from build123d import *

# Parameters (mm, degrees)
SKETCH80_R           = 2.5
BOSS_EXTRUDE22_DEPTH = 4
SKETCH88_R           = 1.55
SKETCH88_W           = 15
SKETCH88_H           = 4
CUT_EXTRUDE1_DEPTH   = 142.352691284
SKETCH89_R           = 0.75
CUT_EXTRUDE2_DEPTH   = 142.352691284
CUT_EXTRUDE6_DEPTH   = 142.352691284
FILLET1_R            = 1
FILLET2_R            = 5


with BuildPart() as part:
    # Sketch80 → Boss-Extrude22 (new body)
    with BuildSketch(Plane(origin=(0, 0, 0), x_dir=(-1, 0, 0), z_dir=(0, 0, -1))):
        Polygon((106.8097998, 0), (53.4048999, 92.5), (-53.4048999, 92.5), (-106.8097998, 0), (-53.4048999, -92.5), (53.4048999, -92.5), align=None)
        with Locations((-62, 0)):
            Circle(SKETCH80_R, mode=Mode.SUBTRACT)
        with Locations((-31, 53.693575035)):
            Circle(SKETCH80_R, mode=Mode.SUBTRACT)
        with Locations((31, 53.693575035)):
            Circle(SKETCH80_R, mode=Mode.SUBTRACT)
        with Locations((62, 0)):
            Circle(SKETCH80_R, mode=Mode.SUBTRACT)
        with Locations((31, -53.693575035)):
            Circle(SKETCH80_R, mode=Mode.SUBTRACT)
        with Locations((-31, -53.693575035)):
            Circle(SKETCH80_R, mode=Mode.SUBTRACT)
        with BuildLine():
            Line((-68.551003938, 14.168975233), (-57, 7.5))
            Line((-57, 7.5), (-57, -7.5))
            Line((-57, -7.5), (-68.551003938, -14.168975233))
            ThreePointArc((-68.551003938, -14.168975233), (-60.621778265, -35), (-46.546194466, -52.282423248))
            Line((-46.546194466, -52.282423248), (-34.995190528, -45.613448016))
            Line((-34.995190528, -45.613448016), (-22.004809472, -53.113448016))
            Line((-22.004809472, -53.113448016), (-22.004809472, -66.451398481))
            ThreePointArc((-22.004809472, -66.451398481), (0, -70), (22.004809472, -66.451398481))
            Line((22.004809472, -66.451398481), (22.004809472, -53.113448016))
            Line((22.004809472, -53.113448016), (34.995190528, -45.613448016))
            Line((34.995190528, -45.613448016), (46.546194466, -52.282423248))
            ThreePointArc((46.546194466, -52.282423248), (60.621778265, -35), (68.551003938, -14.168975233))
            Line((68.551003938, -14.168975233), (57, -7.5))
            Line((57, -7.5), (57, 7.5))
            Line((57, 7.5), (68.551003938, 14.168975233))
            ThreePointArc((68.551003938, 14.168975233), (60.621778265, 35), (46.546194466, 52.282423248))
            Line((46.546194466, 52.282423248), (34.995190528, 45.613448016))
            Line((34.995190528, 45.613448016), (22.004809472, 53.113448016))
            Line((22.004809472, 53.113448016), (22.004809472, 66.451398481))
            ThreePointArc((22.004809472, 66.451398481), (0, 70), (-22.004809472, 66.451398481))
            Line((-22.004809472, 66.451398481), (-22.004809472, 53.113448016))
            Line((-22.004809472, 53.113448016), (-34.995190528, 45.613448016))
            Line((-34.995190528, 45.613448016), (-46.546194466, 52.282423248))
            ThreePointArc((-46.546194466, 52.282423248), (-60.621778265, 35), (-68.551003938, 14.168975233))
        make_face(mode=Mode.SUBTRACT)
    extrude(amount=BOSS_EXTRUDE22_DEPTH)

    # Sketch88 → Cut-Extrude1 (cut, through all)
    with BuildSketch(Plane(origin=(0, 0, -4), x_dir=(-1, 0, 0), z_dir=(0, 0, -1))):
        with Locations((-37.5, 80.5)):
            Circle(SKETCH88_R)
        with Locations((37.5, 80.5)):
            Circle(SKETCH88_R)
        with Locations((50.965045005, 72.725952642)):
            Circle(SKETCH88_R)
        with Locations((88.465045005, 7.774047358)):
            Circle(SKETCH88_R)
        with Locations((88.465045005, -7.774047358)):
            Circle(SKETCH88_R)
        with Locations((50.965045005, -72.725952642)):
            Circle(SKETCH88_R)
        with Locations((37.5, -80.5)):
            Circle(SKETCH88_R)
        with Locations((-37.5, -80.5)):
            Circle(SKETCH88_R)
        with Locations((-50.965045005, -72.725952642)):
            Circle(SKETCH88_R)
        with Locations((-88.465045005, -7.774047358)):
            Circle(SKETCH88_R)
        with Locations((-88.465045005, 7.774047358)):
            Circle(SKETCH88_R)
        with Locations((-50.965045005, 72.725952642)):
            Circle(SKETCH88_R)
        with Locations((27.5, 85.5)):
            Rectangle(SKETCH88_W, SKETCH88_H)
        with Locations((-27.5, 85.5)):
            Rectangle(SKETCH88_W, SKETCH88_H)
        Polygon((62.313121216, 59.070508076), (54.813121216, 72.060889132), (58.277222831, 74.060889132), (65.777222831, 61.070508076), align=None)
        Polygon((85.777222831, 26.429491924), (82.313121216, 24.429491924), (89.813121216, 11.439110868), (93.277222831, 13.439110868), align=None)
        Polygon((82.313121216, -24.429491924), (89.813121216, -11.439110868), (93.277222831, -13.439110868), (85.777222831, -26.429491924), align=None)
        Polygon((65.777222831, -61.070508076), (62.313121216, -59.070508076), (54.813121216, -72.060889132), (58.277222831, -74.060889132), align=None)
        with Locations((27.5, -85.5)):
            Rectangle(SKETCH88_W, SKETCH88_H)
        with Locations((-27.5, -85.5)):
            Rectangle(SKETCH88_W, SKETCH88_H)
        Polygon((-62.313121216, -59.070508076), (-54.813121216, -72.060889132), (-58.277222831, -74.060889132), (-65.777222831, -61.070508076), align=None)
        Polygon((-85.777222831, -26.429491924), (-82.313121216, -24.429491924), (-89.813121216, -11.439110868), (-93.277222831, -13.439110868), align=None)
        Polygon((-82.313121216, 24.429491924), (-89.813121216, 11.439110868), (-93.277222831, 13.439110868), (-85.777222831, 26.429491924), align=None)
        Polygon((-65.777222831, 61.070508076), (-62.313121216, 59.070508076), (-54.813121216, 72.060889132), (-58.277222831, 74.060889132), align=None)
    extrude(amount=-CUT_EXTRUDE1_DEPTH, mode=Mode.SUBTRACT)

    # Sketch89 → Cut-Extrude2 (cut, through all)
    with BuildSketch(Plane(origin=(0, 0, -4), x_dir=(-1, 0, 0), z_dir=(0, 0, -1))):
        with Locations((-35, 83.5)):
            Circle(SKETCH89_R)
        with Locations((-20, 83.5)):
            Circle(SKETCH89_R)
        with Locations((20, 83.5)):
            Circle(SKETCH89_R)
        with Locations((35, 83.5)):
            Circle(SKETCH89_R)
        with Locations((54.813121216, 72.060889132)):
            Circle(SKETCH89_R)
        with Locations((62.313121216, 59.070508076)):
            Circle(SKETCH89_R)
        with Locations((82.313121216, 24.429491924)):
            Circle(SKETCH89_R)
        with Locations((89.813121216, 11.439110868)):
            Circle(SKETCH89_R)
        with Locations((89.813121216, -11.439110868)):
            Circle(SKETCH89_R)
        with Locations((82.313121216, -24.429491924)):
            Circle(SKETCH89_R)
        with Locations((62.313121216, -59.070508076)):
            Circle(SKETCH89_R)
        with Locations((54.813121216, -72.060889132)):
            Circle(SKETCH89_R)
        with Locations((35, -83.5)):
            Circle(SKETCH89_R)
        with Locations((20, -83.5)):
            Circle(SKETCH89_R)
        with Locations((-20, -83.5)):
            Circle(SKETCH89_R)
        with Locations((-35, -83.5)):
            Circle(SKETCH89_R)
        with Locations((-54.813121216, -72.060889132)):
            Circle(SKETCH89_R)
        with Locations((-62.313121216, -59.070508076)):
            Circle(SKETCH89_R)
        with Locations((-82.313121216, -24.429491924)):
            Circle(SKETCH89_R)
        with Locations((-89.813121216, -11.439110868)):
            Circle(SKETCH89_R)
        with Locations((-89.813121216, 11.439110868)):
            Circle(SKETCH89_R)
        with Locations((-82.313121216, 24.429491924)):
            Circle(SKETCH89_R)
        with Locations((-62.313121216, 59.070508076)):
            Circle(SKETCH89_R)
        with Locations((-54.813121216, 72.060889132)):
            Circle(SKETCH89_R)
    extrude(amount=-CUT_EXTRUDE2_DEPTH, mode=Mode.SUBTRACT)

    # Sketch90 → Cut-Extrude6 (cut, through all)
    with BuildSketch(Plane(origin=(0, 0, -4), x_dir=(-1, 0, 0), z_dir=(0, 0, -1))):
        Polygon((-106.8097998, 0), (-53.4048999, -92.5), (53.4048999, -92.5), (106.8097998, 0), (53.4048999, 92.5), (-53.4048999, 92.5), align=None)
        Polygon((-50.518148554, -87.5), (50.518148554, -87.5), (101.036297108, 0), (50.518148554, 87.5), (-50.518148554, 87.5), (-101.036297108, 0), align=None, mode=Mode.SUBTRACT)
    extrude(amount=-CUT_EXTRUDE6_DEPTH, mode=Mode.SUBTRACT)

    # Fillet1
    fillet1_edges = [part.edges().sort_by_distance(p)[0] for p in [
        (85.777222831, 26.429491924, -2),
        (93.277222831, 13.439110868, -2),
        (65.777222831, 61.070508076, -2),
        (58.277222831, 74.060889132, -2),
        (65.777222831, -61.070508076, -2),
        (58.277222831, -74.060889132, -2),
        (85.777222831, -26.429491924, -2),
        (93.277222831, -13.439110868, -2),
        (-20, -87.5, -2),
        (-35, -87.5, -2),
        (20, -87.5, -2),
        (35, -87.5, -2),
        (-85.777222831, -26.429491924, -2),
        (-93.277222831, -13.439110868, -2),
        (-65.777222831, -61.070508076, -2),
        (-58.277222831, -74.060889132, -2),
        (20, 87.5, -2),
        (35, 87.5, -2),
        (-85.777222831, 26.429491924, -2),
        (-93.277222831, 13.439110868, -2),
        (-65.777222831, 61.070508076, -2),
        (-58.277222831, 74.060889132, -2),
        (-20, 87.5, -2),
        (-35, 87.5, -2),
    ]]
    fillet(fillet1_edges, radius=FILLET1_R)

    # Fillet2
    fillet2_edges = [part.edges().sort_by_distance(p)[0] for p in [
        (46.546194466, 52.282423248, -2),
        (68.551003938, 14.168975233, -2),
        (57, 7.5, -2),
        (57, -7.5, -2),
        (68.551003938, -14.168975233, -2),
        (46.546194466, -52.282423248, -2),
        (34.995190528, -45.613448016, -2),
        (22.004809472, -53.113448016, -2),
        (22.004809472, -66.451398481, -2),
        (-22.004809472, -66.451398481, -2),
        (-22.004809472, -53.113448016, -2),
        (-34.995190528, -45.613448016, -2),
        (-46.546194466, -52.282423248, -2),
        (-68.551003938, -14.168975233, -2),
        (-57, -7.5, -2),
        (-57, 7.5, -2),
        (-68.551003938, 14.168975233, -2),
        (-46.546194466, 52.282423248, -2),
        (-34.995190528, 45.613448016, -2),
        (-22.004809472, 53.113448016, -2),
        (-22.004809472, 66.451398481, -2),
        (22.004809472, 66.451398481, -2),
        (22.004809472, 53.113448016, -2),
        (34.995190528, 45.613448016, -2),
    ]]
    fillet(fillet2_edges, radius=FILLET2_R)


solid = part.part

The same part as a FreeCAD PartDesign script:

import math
import FreeCAD as App
import Part
import Sketcher
Q = App.Units.Quantity


def edges_at(feature, points):
    """Names of the edges that pass closest to the given points."""
    edges = feature.Shape.Edges
    near = lambda p: min(range(len(edges)), key=lambda i: edges[i].distToShape(Part.Vertex(*p))[0])
    return sorted({f"Edge{near(p) + 1}" for p in points})


def add_polygon(sketch, points):
    """Adds a closed chain of lines whose ends are joined by coincident constraints."""
    first, n = sketch.GeometryCount, len(points)
    for a, b in zip(points, points[1:] + points[:1]):
        sketch.addGeometry(Part.LineSegment(App.Vector(*a, 0), App.Vector(*b, 0)), False)
    for i in range(n):
        sketch.addConstraint(Sketcher.Constraint("Coincident", first + i, 2, first + (i + 1) % n, 1))

doc = App.newDocument("Part")
body = doc.addObject("PartDesign::Body", "Body")

sketch1 = doc.addObject("Sketcher::SketchObject", "Sketch")
body.addObject(sketch1)
sketch1.AttachmentSupport = (doc.XY_Plane, [""])
sketch1.MapMode = "FlatFace"
add_polygon(sketch1, [(-106.8, 0), (-53.4, 92.5), (53.4, 92.5), (106.8, 0), (53.4, -92.5), (-53.4, -92.5)])
sketch1.addGeometry(Part.Circle(App.Vector(31, -53.7, 0), App.Vector(0, 0, 1), 2.5), False)
sketch1.addGeometry(Part.Circle(App.Vector(62, 0, 0), App.Vector(0, 0, 1), 2.5), False)
sketch1.addGeometry(Part.Circle(App.Vector(-31, -53.7, 0), App.Vector(0, 0, 1), 2.5), False)
sketch1.addGeometry(Part.Circle(App.Vector(-62, 0, 0), App.Vector(0, 0, 1), 2.5), False)
sketch1.addGeometry(Part.Circle(App.Vector(31, 53.7, 0), App.Vector(0, 0, 1), 2.5), False)
sketch1.addGeometry(Part.LineSegment(App.Vector(57, 7.5, 0), App.Vector(68.6, 14.2, 0)), False)
sketch1.addGeometry(Part.ArcOfCircle(Part.Circle(App.Vector(0, 0, 0), App.Vector(0, 0, 1), 70), math.radians(12), math.radians(48)), False)
sketch1.addGeometry(Part.LineSegment(App.Vector(46.5, 52.3, 0), App.Vector(35, 45.6, 0)), False)
sketch1.addGeometry(Part.LineSegment(App.Vector(35, 45.6, 0), App.Vector(22, 53.1, 0)), False)
sketch1.addGeometry(Part.LineSegment(App.Vector(22, 53.1, 0), App.Vector(22, 66.5, 0)), False)
sketch1.addGeometry(Part.ArcOfCircle(Part.Circle(App.Vector(0, 0, 0), App.Vector(0, 0, 1), 70), math.radians(72), math.radians(108)), False)
sketch1.addGeometry(Part.LineSegment(App.Vector(-22, 66.5, 0), App.Vector(-22, 53.1, 0)), False)
sketch1.addGeometry(Part.LineSegment(App.Vector(-22, 53.1, 0), App.Vector(-35, 45.6, 0)), False)
sketch1.addGeometry(Part.LineSegment(App.Vector(-35, 45.6, 0), App.Vector(-46.5, 52.3, 0)), False)
sketch1.addGeometry(Part.ArcOfCircle(Part.Circle(App.Vector(0, 0, 0), App.Vector(0, 0, 1), 70), math.radians(132), math.radians(168)), False)
sketch1.addGeometry(Part.LineSegment(App.Vector(-68.6, 14.2, 0), App.Vector(-57, 7.5, 0)), False)
sketch1.addGeometry(Part.LineSegment(App.Vector(-57, 7.5, 0), App.Vector(-57, -7.5, 0)), False)
sketch1.addGeometry(Part.LineSegment(App.Vector(-57, -7.5, 0), App.Vector(-68.6, -14.2, 0)), False)
sketch1.addGeometry(Part.ArcOfCircle(Part.Circle(App.Vector(0, 0, 0), App.Vector(0, 0, 1), 70), math.radians(-168), math.radians(-132)), False)
sketch1.addGeometry(Part.LineSegment(App.Vector(-46.5, -52.3, 0), App.Vector(-35, -45.6, 0)), False)
sketch1.addGeometry(Part.LineSegment(App.Vector(-35, -45.6, 0), App.Vector(-22, -53.1, 0)), False)
sketch1.addGeometry(Part.LineSegment(App.Vector(-22, -53.1, 0), App.Vector(-22, -66.5, 0)), False)
sketch1.addGeometry(Part.ArcOfCircle(Part.Circle(App.Vector(0, 0, 0), App.Vector(0, 0, 1), 70), math.radians(-108), math.radians(-72)), False)
sketch1.addGeometry(Part.LineSegment(App.Vector(22, -66.5, 0), App.Vector(22, -53.1, 0)), False)
sketch1.addGeometry(Part.LineSegment(App.Vector(22, -53.1, 0), App.Vector(35, -45.6, 0)), False)
sketch1.addGeometry(Part.LineSegment(App.Vector(35, -45.6, 0), App.Vector(46.5, -52.3, 0)), False)
sketch1.addGeometry(Part.ArcOfCircle(Part.Circle(App.Vector(0, 0, 0), App.Vector(0, 0, 1), 70), math.radians(-48), math.radians(-12)), False)
sketch1.addGeometry(Part.LineSegment(App.Vector(68.6, -14.2, 0), App.Vector(57, -7.5, 0)), False)
sketch1.addGeometry(Part.LineSegment(App.Vector(57, -7.5, 0), App.Vector(57, 7.5, 0)), False)
sketch1.addGeometry(Part.Circle(App.Vector(-31, 53.7, 0), App.Vector(0, 0, 1), 2.5), False)
sketch1.addConstraint([
    Sketcher.Constraint("Coincident", 11, 2, 12, 1),
    Sketcher.Constraint("Coincident", 12, 2, 13, 1),
    Sketcher.Constraint("Coincident", 13, 2, 14, 1),
    Sketcher.Constraint("Coincident", 14, 2, 15, 1),
    Sketcher.Constraint("Coincident", 15, 2, 16, 1),
    Sketcher.Constraint("Coincident", 16, 2, 17, 1),
    Sketcher.Constraint("Coincident", 17, 2, 18, 1),
    Sketcher.Constraint("Coincident", 18, 2, 19, 1),
    Sketcher.Constraint("Coincident", 19, 2, 20, 1),
    Sketcher.Constraint("Coincident", 20, 2, 21, 1),
    Sketcher.Constraint("Coincident", 21, 2, 22, 1),
    Sketcher.Constraint("Coincident", 22, 2, 23, 1),
    Sketcher.Constraint("Coincident", 23, 2, 24, 1),
    Sketcher.Constraint("Coincident", 24, 2, 25, 1),
    Sketcher.Constraint("Coincident", 25, 2, 26, 1),
    Sketcher.Constraint("Coincident", 26, 2, 27, 1),
    Sketcher.Constraint("Coincident", 27, 2, 28, 1),
    Sketcher.Constraint("Coincident", 28, 2, 29, 1),
    Sketcher.Constraint("Coincident", 29, 2, 30, 1),
    Sketcher.Constraint("Coincident", 30, 2, 31, 1),
    Sketcher.Constraint("Coincident", 31, 2, 32, 1),
    Sketcher.Constraint("Coincident", 32, 2, 33, 1),
    Sketcher.Constraint("Coincident", 33, 2, 34, 1),
    Sketcher.Constraint("Coincident", 34, 2, 11, 1),
    Sketcher.Constraint("Horizontal", 1),
    Sketcher.Constraint("Horizontal", 4),
    Sketcher.Constraint("Vertical", 15),
    Sketcher.Constraint("Vertical", 17),
    Sketcher.Constraint("Vertical", 22),
    Sketcher.Constraint("Vertical", 27),
    Sketcher.Constraint("Vertical", 29),
    Sketcher.Constraint("Vertical", 34),
    Sketcher.Constraint("Coincident", 12, 3, -1, 1),
    Sketcher.Constraint("Coincident", 16, 3, -1, 1),
    Sketcher.Constraint("Coincident", 20, 3, -1, 1),
    Sketcher.Constraint("Coincident", 24, 3, -1, 1),
    Sketcher.Constraint("Coincident", 28, 3, -1, 1),
    Sketcher.Constraint("Coincident", 32, 3, -1, 1),
    Sketcher.Constraint("Equal", 6, 7),
    Sketcher.Constraint("Equal", 7, 8),
    Sketcher.Constraint("Equal", 8, 9),
    Sketcher.Constraint("Equal", 9, 10),
    Sketcher.Constraint("Equal", 12, 16),
    Sketcher.Constraint("Equal", 16, 20),
    Sketcher.Constraint("Equal", 20, 24),
    Sketcher.Constraint("Equal", 24, 28),
    Sketcher.Constraint("Equal", 28, 32),
    Sketcher.Constraint("Equal", 10, 35),
    Sketcher.Constraint("Symmetric", 7, 3, 9, 3, -1, 1),
    Sketcher.Constraint("Symmetric", 8, 3, 10, 3, -1, 1),
    Sketcher.Constraint("Symmetric", 6, 3, 35, 3, -1, 1),
    Sketcher.Constraint("Symmetric", 0, 2, 3, 2, -1, 1),
    Sketcher.Constraint("Symmetric", 2, 2, 5, 2, -1, 1),
    Sketcher.Constraint("Symmetric", 13, 2, 25, 2, -1, 1),
    Sketcher.Constraint("Symmetric", 14, 2, 26, 2, -1, 1),
    Sketcher.Constraint("Symmetric", 17, 2, 29, 2, -1, 1),
    Sketcher.Constraint("Symmetric", 18, 2, 30, 2, -1, 1),
    Sketcher.Constraint("Symmetric", 21, 2, 33, 2, -1, 1),
    Sketcher.Constraint("Symmetric", 6, 3, 8, 3, -2),
    Sketcher.Constraint("Symmetric", 14, 2, 17, 2, -2),
    Sketcher.Constraint("Symmetric", 13, 2, 18, 2, -2),
    Sketcher.Constraint("PointOnObject", 7, 3, -1),
    Sketcher.Constraint("PointOnObject", 2, 2, -1),
    Sketcher.Constraint("Parallel", 2, 5),
    Sketcher.Constraint("Perpendicular", 5, 11),
    Sketcher.Constraint("Parallel", 11, 13),
    Sketcher.Constraint("Perpendicular", 3, 14),
    Sketcher.Constraint("Parallel", 13, 18),
    Sketcher.Constraint("Parallel", 14, 19),
    Sketcher.Constraint("Parallel", 19, 21),
    Sketcher.Constraint("Parallel", 18, 23),
    Sketcher.Constraint("Parallel", 23, 25),
    Sketcher.Constraint("Parallel", 26, 31),
    Sketcher.Constraint("Parallel", 31, 33),
    Sketcher.Constraint("Horizontal", 11, 2, 20, 2),
    Sketcher.Constraint("Horizontal", 23, 2, 32, 2),
    Sketcher.Constraint("Equal", 11, 13),
    Sketcher.Constraint("Diameter", 6, Q("5 mm")),
    Sketcher.Constraint("Radius", 12, Q("70 mm")),
    Sketcher.Constraint("DistanceY", 22, 2, 22, 1, Q("15 mm")),
    Sketcher.Constraint("Angle", 0, Q("60 deg")),
    Sketcher.Constraint("Distance", 14, Q("15 mm")),
    Sketcher.Constraint("DistanceX", -1, 1, 6, 3, Q("31 mm")),
    Sketcher.Constraint("DistanceX", -1, 1, 7, 3, Q("62 mm")),
    Sketcher.Constraint("DistanceX", 21, 2, -1, 1, Q("57 mm")),
    Sketcher.Constraint("DistanceY", -1, 1, 0, 2, Q("92.5 mm")),
    Sketcher.Constraint("DistanceX", 1, 1, 1, 2, Q("106.8098 mm")),
    Sketcher.Constraint("DistanceY", 15, 1, 15, 2, Q("13.33795 mm")),
    Sketcher.Constraint("DistanceY", 11, 2, 10, 3, Q("39.5246 mm")),
])
pad1 = doc.addObject("PartDesign::Pad", "Pad")
body.addObject(pad1)
pad1.Profile = sketch1
pad1.Length = 4
pad1.Reversed = True

sketch2 = doc.addObject("Sketcher::SketchObject", "Sketch001")
body.addObject(sketch2)
sketch2.AttachmentSupport = (doc.XY_Plane, [""])
sketch2.MapMode = "FlatFace"
sketch2.AttachmentOffset = App.Placement(App.Vector(0, 0, -4), App.Rotation())
sketch2.addGeometry(Part.Circle(App.Vector(37.5, 80.5, 0), App.Vector(0, 0, 1), 1.6), False)
sketch2.addGeometry(Part.Circle(App.Vector(-37.5, 80.5, 0), App.Vector(0, 0, 1), 1.6), False)
sketch2.addGeometry(Part.Circle(App.Vector(-51, 72.7, 0), App.Vector(0, 0, 1), 1.6), False)
sketch2.addGeometry(Part.Circle(App.Vector(-88.5, 7.8, 0), App.Vector(0, 0, 1), 1.6), False)
sketch2.addGeometry(Part.Circle(App.Vector(-88.5, -7.8, 0), App.Vector(0, 0, 1), 1.6), False)
sketch2.addGeometry(Part.Circle(App.Vector(-51, -72.7, 0), App.Vector(0, 0, 1), 1.6), False)
sketch2.addGeometry(Part.Circle(App.Vector(-37.5, -80.5, 0), App.Vector(0, 0, 1), 1.6), False)
sketch2.addGeometry(Part.Circle(App.Vector(37.5, -80.5, 0), App.Vector(0, 0, 1), 1.6), False)
sketch2.addGeometry(Part.Circle(App.Vector(51, -72.7, 0), App.Vector(0, 0, 1), 1.6), False)
sketch2.addGeometry(Part.Circle(App.Vector(88.5, -7.8, 0), App.Vector(0, 0, 1), 1.6), False)
sketch2.addGeometry(Part.Circle(App.Vector(88.5, 7.8, 0), App.Vector(0, 0, 1), 1.6), False)
sketch2.addGeometry(Part.Circle(App.Vector(51, 72.7, 0), App.Vector(0, 0, 1), 1.6), False)
add_polygon(sketch2, [(-20, 87.5), (-20, 83.5), (-35, 83.5), (-35, 87.5)])
add_polygon(sketch2, [(35, 87.5), (35, 83.5), (20, 83.5), (20, 87.5)])
add_polygon(sketch2, [(-54.8, 72.1), (-62.3, 59.1), (-65.8, 61.1), (-58.3, 74.1)])
add_polygon(sketch2, [(-85.8, 26.4), (-82.3, 24.4), (-89.8, 11.4), (-93.3, 13.4)])
add_polygon(sketch2, [(-89.8, -11.4), (-82.3, -24.4), (-85.8, -26.4), (-93.3, -13.4)])
add_polygon(sketch2, [(-65.8, -61.1), (-62.3, -59.1), (-54.8, -72.1), (-58.3, -74.1)])
add_polygon(sketch2, [(-20, -83.5), (-20, -87.5), (-35, -87.5), (-35, -83.5)])
add_polygon(sketch2, [(35, -83.5), (35, -87.5), (20, -87.5), (20, -83.5)])
add_polygon(sketch2, [(54.8, -72.1), (62.3, -59.1), (65.8, -61.1), (58.3, -74.1)])
add_polygon(sketch2, [(85.8, -26.4), (82.3, -24.4), (89.8, -11.4), (93.3, -13.4)])
add_polygon(sketch2, [(89.8, 11.4), (82.3, 24.4), (85.8, 26.4), (93.3, 13.4)])
add_polygon(sketch2, [(65.8, 61.1), (62.3, 59.1), (54.8, 72.1), (58.3, 74.1)])
sketch2.addConstraint([
    Sketcher.Constraint("Vertical", 12),
    Sketcher.Constraint("Horizontal", 13),
    Sketcher.Constraint("Vertical", 14),
    Sketcher.Constraint("Horizontal", 15),
    Sketcher.Constraint("Vertical", 16),
    Sketcher.Constraint("Horizontal", 17),
    Sketcher.Constraint("Vertical", 18),
    Sketcher.Constraint("Horizontal", 19),
    Sketcher.Constraint("Vertical", 36),
    Sketcher.Constraint("Horizontal", 37),
    Sketcher.Constraint("Vertical", 38),
    Sketcher.Constraint("Horizontal", 39),
    Sketcher.Constraint("Vertical", 40),
    Sketcher.Constraint("Horizontal", 41),
    Sketcher.Constraint("Vertical", 42),
    Sketcher.Constraint("Horizontal", 43),
    Sketcher.Constraint("Equal", 0, 1),
    Sketcher.Constraint("Equal", 1, 2),
    Sketcher.Constraint("Equal", 2, 3),
    Sketcher.Constraint("Equal", 3, 4),
    Sketcher.Constraint("Equal", 4, 5),
    Sketcher.Constraint("Equal", 5, 6),
    Sketcher.Constraint("Equal", 6, 7),
    Sketcher.Constraint("Equal", 7, 8),
    Sketcher.Constraint("Equal", 8, 9),
    Sketcher.Constraint("Equal", 9, 10),
    Sketcher.Constraint("Equal", 10, 11),
    Sketcher.Constraint("Symmetric", 0, 3, 6, 3, -1, 1),
    Sketcher.Constraint("Symmetric", 1, 3, 7, 3, -1, 1),
    Sketcher.Constraint("Symmetric", 2, 3, 8, 3, -1, 1),
    Sketcher.Constraint("Symmetric", 3, 3, 9, 3, -1, 1),
    Sketcher.Constraint("Symmetric", 4, 3, 10, 3, -1, 1),
    Sketcher.Constraint("Symmetric", 5, 3, 11, 3, -1, 1),
    Sketcher.Constraint("Symmetric", 18, 2, 36, 2, -1, 1),
    Sketcher.Constraint("Symmetric", 16, 2, 38, 2, -1, 1),
    Sketcher.Constraint("Symmetric", 14, 2, 40, 2, -1, 1),
    Sketcher.Constraint("Symmetric", 12, 2, 42, 2, -1, 1),
    Sketcher.Constraint("Symmetric", 20, 2, 44, 2, -1, 1),
    Sketcher.Constraint("Symmetric", 21, 2, 45, 2, -1, 1),
    Sketcher.Constraint("Symmetric", 22, 2, 46, 2, -1, 1),
    Sketcher.Constraint("Symmetric", 23, 2, 47, 2, -1, 1),
    Sketcher.Constraint("Symmetric", 24, 2, 48, 2, -1, 1),
    Sketcher.Constraint("Symmetric", 25, 2, 49, 2, -1, 1),
    Sketcher.Constraint("Symmetric", 26, 2, 50, 2, -1, 1),
    Sketcher.Constraint("Symmetric", 27, 2, 51, 2, -1, 1),
    Sketcher.Constraint("Symmetric", 28, 2, 52, 2, -1, 1),
    Sketcher.Constraint("Symmetric", 29, 2, 53, 2, -1, 1),
    Sketcher.Constraint("Symmetric", 30, 2, 54, 2, -1, 1),
    Sketcher.Constraint("Symmetric", 31, 2, 55, 2, -1, 1),
    Sketcher.Constraint("Symmetric", 32, 2, 56, 2, -1, 1),
    Sketcher.Constraint("Symmetric", 33, 2, 57, 2, -1, 1),
    Sketcher.Constraint("Symmetric", 34, 2, 58, 2, -1, 1),
    Sketcher.Constraint("Symmetric", 35, 2, 59, 2, -1, 1),
    Sketcher.Constraint("Symmetric", 0, 3, 1, 3, -2),
    Sketcher.Constraint("Symmetric", 5, 3, 8, 3, -2),
    Sketcher.Constraint("Symmetric", 4, 3, 9, 3, -2),
    Sketcher.Constraint("Symmetric", 13, 2, 16, 2, -2),
    Sketcher.Constraint("Symmetric", 15, 2, 18, 2, -2),
    Sketcher.Constraint("Symmetric", 32, 2, 44, 2, -2),
    Sketcher.Constraint("Symmetric", 35, 2, 45, 2, -2),
    Sketcher.Constraint("Symmetric", 34, 2, 46, 2, -2),
    Sketcher.Constraint("Symmetric", 33, 2, 47, 2, -2),
    Sketcher.Constraint("Symmetric", 28, 2, 48, 2, -2),
    Sketcher.Constraint("Symmetric", 31, 2, 49, 2, -2),
    Sketcher.Constraint("Symmetric", 30, 2, 50, 2, -2),
    Sketcher.Constraint("Symmetric", 29, 2, 51, 2, -2),
    Sketcher.Constraint("Perpendicular", 20, 21),
    Sketcher.Constraint("Perpendicular", 21, 22),
    Sketcher.Constraint("Perpendicular", 22, 23),
    Sketcher.Constraint("Parallel", 23, 24),
    Sketcher.Constraint("Perpendicular", 24, 25),
    Sketcher.Constraint("Perpendicular", 25, 26),
    Sketcher.Constraint("Perpendicular", 26, 27),
    Sketcher.Constraint("Equal", 23, 24),
    Sketcher.Constraint("Equal", 22, 25),
    Sketcher.Constraint("Diameter", 0, Q("3.1 mm")),
    Sketcher.Constraint("DistanceX", 13, 2, 13, 1, Q("15 mm")),
    Sketcher.Constraint("DistanceY", 12, 2, 12, 1, Q("4 mm")),
    Sketcher.Constraint("Angle", 20, Q("-120 deg")),
    Sketcher.Constraint("Distance", 20, Q("15 mm")),
    Sketcher.Constraint("Distance", 21, Q("4 mm")),
    Sketcher.Constraint("DistanceX", 12, 2, -1, 1, Q("20 mm")),
    Sketcher.Constraint("DistanceX", 1, 3, 0, 3, Q("75 mm")),
    Sketcher.Constraint("DistanceY", 6, 3, 1, 3, Q("161 mm")),
    Sketcher.Constraint("DistanceY", 1, 3, 12, 2, Q("3 mm")),
    Sketcher.Constraint("DistanceX", 24, 2, 20, 2, Q("20 mm")),
    Sketcher.Constraint("DistanceX", 3, 3, 2, 3, Q("37.5 mm")),
    Sketcher.Constraint("DistanceY", 4, 3, 2, 3, Q("80.5 mm")),
    Sketcher.Constraint("DistanceX", 20, 2, -1, 1, Q("62.313121 mm")),
    Sketcher.Constraint("DistanceY", -1, 1, 20, 2, Q("59.070508 mm")),
    Sketcher.Constraint("DistanceY", -1, 1, 24, 2, Q("24.429492 mm")),
    Sketcher.Constraint("DistanceX", 5, 3, 8, 3, Q("101.93009 mm")),
    Sketcher.Constraint("DistanceY", 4, 3, 24, 2, Q("32.203539 mm")),
])
pocket1 = doc.addObject("PartDesign::Pocket", "Pocket")
body.addObject(pocket1)
pocket1.Profile = sketch2
pocket1.Type = "ThroughAll"
pocket1.Reversed = True

sketch3 = doc.addObject("Sketcher::SketchObject", "Sketch002")
body.addObject(sketch3)
sketch3.AttachmentSupport = (doc.XY_Plane, [""])
sketch3.MapMode = "FlatFace"
sketch3.AttachmentOffset = App.Placement(App.Vector(0, 0, -4), App.Rotation())
sketch3.addGeometry([
    Part.Circle(App.Vector(35, 83.5, 0), App.Vector(0, 0, 1), 0.8),
    Part.Circle(App.Vector(20, 83.5, 0), App.Vector(0, 0, 1), 0.8),
    Part.Circle(App.Vector(-20, 83.5, 0), App.Vector(0, 0, 1), 0.8),
    Part.Circle(App.Vector(-35, 83.5, 0), App.Vector(0, 0, 1), 0.8),
    Part.Circle(App.Vector(-54.8, 72.1, 0), App.Vector(0, 0, 1), 0.8),
    Part.Circle(App.Vector(-62.3, 59.1, 0), App.Vector(0, 0, 1), 0.8),
    Part.Circle(App.Vector(-82.3, 24.4, 0), App.Vector(0, 0, 1), 0.8),
    Part.Circle(App.Vector(-89.8, 11.4, 0), App.Vector(0, 0, 1), 0.8),
    Part.Circle(App.Vector(-89.8, -11.4, 0), App.Vector(0, 0, 1), 0.8),
    Part.Circle(App.Vector(-82.3, -24.4, 0), App.Vector(0, 0, 1), 0.8),
    Part.Circle(App.Vector(-62.3, -59.1, 0), App.Vector(0, 0, 1), 0.8),
    Part.Circle(App.Vector(-54.8, -72.1, 0), App.Vector(0, 0, 1), 0.8),
    Part.Circle(App.Vector(-35, -83.5, 0), App.Vector(0, 0, 1), 0.8),
    Part.Circle(App.Vector(-20, -83.5, 0), App.Vector(0, 0, 1), 0.8),
    Part.Circle(App.Vector(20, -83.5, 0), App.Vector(0, 0, 1), 0.8),
    Part.Circle(App.Vector(35, -83.5, 0), App.Vector(0, 0, 1), 0.8),
    Part.Circle(App.Vector(54.8, -72.1, 0), App.Vector(0, 0, 1), 0.8),
    Part.Circle(App.Vector(62.3, -59.1, 0), App.Vector(0, 0, 1), 0.8),
    Part.Circle(App.Vector(82.3, -24.4, 0), App.Vector(0, 0, 1), 0.8),
    Part.Circle(App.Vector(89.8, -11.4, 0), App.Vector(0, 0, 1), 0.8),
    Part.Circle(App.Vector(89.8, 11.4, 0), App.Vector(0, 0, 1), 0.8),
    Part.Circle(App.Vector(82.3, 24.4, 0), App.Vector(0, 0, 1), 0.8),
    Part.Circle(App.Vector(62.3, 59.1, 0), App.Vector(0, 0, 1), 0.8),
    Part.Circle(App.Vector(54.8, 72.1, 0), App.Vector(0, 0, 1), 0.8),
], False)
sketch3.addConstraint([
    Sketcher.Constraint("Equal", 0, 1),
    Sketcher.Constraint("Equal", 1, 2),
    Sketcher.Constraint("Equal", 2, 3),
    Sketcher.Constraint("Equal", 3, 4),
    Sketcher.Constraint("Equal", 4, 5),
    Sketcher.Constraint("Equal", 5, 6),
    Sketcher.Constraint("Equal", 6, 7),
    Sketcher.Constraint("Equal", 7, 8),
    Sketcher.Constraint("Equal", 8, 9),
    Sketcher.Constraint("Equal", 9, 10),
    Sketcher.Constraint("Equal", 10, 11),
    Sketcher.Constraint("Equal", 11, 12),
    Sketcher.Constraint("Equal", 12, 13),
    Sketcher.Constraint("Equal", 13, 14),
    Sketcher.Constraint("Equal", 14, 15),
    Sketcher.Constraint("Equal", 15, 16),
    Sketcher.Constraint("Equal", 16, 17),
    Sketcher.Constraint("Equal", 17, 18),
    Sketcher.Constraint("Equal", 18, 19),
    Sketcher.Constraint("Equal", 19, 20),
    Sketcher.Constraint("Equal", 20, 21),
    Sketcher.Constraint("Equal", 21, 22),
    Sketcher.Constraint("Equal", 22, 23),
    Sketcher.Constraint("Symmetric", 0, 3, 12, 3, -1, 1),
    Sketcher.Constraint("Symmetric", 1, 3, 13, 3, -1, 1),
    Sketcher.Constraint("Symmetric", 2, 3, 14, 3, -1, 1),
    Sketcher.Constraint("Symmetric", 3, 3, 15, 3, -1, 1),
    Sketcher.Constraint("Symmetric", 4, 3, 16, 3, -1, 1),
    Sketcher.Constraint("Symmetric", 5, 3, 17, 3, -1, 1),
    Sketcher.Constraint("Symmetric", 6, 3, 18, 3, -1, 1),
    Sketcher.Constraint("Symmetric", 7, 3, 19, 3, -1, 1),
    Sketcher.Constraint("Symmetric", 8, 3, 20, 3, -1, 1),
    Sketcher.Constraint("Symmetric", 9, 3, 21, 3, -1, 1),
    Sketcher.Constraint("Symmetric", 10, 3, 22, 3, -1, 1),
    Sketcher.Constraint("Symmetric", 11, 3, 23, 3, -1, 1),
    Sketcher.Constraint("Symmetric", 1, 3, 2, 3, -2),
    Sketcher.Constraint("Symmetric", 0, 3, 3, 3, -2),
    Sketcher.Constraint("Symmetric", 11, 3, 16, 3, -2),
    Sketcher.Constraint("Symmetric", 10, 3, 17, 3, -2),
    Sketcher.Constraint("Symmetric", 9, 3, 18, 3, -2),
    Sketcher.Constraint("Symmetric", 8, 3, 19, 3, -2),
    Sketcher.Constraint("Horizontal", 0, 3, 1, 3),
    Sketcher.Constraint("Diameter", 0, Q("1.5 mm")),
    Sketcher.Constraint("DistanceX", -1, 1, 0, 3, Q("35 mm")),
    Sketcher.Constraint("DistanceX", -1, 1, 1, 3, Q("20 mm")),
    Sketcher.Constraint("DistanceX", 6, 3, 5, 3, Q("20 mm")),
    Sketcher.Constraint("DistanceX", 7, 3, 4, 3, Q("35 mm")),
    Sketcher.Constraint("DistanceY", -1, 1, 0, 3, Q("83.5 mm")),
    Sketcher.Constraint("DistanceX", 5, 3, 4, 3, Q("7.5 mm")),
    Sketcher.Constraint("DistanceY", 8, 3, 4, 3, Q("83.5 mm")),
    Sketcher.Constraint("DistanceY", 9, 3, 5, 3, Q("83.5 mm")),
    Sketcher.Constraint("DistanceX", 4, 3, -1, 1, Q("54.813121 mm")),
    Sketcher.Constraint("DistanceY", -1, 1, 4, 3, Q("72.060889 mm")),
    Sketcher.Constraint("DistanceY", -1, 1, 5, 3, Q("59.070508 mm")),
])
pocket2 = doc.addObject("PartDesign::Pocket", "Pocket001")
body.addObject(pocket2)
pocket2.Profile = sketch3
pocket2.Type = "ThroughAll"
pocket2.Reversed = True

sketch4 = doc.addObject("Sketcher::SketchObject", "Sketch003")
body.addObject(sketch4)
sketch4.AttachmentSupport = (doc.XY_Plane, [""])
sketch4.MapMode = "FlatFace"
sketch4.AttachmentOffset = App.Placement(App.Vector(0, 0, -4), App.Rotation())
add_polygon(sketch4, [(107, 0), (53, -92), (-53, -92), (-107, 0), (-53, 92), (53, 92)])
add_polygon(sketch4, [(-51, -88), (51, -88), (101, 0), (51, 88), (-51, 88), (-101, 0)])
sketch4.addConstraint([
    Sketcher.Constraint("Horizontal", 1),
    Sketcher.Constraint("Horizontal", 4),
    Sketcher.Constraint("Horizontal", 6),
    Sketcher.Constraint("Horizontal", 9),
    Sketcher.Constraint("Symmetric", 0, 2, 3, 2, -1, 1),
    Sketcher.Constraint("Symmetric", 2, 2, 5, 2, -1, 1),
    Sketcher.Constraint("Symmetric", 6, 2, 9, 2, -1, 1),
    Sketcher.Constraint("Symmetric", 7, 2, 10, 2, -1, 1),
    Sketcher.Constraint("PointOnObject", 2, 2, -1),
    Sketcher.Constraint("PointOnObject", 7, 2, -1),
    Sketcher.Constraint("Parallel", 2, 5),
    Sketcher.Constraint("Parallel", 3, 7),
    Sketcher.Constraint("Parallel", 5, 8),
    Sketcher.Constraint("Parallel", 8, 11),
    Sketcher.Constraint("Vertical", 1, 2, 3, 2),
    Sketcher.Constraint("Angle", 0, Q("-120 deg")),
    Sketcher.Constraint("DistanceY", 1, 2, 3, 2, Q("185 mm")),
    Sketcher.Constraint("DistanceY", 0, 2, 6, 2, Q("5 mm")),
    Sketcher.Constraint("DistanceX", 1, 2, 1, 1, Q("106.8098 mm")),
    Sketcher.Constraint("DistanceX", 6, 1, 6, 2, Q("101.036297 mm")),
])
pocket3 = doc.addObject("PartDesign::Pocket", "Pocket002")
body.addObject(pocket3)
pocket3.Profile = sketch4
pocket3.Type = "ThroughAll"
pocket3.Reversed = True
doc.recompute()

fillet = doc.addObject("PartDesign::Fillet", "Fillet")
body.addObject(fillet)
fillet.Base = (pocket3, edges_at(pocket3, [
    (85.777, 26.429, -2),
    (93.277, 13.439, -2),
    (65.777, 61.071, -2),
    (58.277, 74.061, -2),
    (65.777, -61.071, -2),
    (58.277, -74.061, -2),
    (85.777, -26.429, -2),
    (93.277, -13.439, -2),
    (-20, -87.5, -2),
    (-35, -87.5, -2),
    (20, -87.5, -2),
    (35, -87.5, -2),
    (-85.777, -26.429, -2),
    (-93.277, -13.439, -2),
    (-65.777, -61.071, -2),
    (-58.277, -74.061, -2),
    (20, 87.5, -2),
    (35, 87.5, -2),
    (-85.777, 26.429, -2),
    (-93.277, 13.439, -2),
    (-65.777, 61.071, -2),
    (-58.277, 74.061, -2),
    (-20, 87.5, -2),
    (-35, 87.5, -2),
]))
fillet.Radius = 1
doc.recompute()

fillet2 = doc.addObject("PartDesign::Fillet", "Fillet001")
body.addObject(fillet2)
fillet2.Base = (fillet, edges_at(fillet, [
    (46.546, 52.282, -2),
    (68.551, 14.169, -2),
    (57, 7.5, -2),
    (57, -7.5, -2),
    (68.551, -14.169, -2),
    (46.546, -52.282, -2),
    (34.995, -45.613, -2),
    (22.005, -53.113, -2),
    (22.005, -66.451, -2),
    (-22.005, -66.451, -2),
    (-22.005, -53.113, -2),
    (-34.995, -45.613, -2),
    (-46.546, -52.282, -2),
    (-68.551, -14.169, -2),
    (-57, -7.5, -2),
    (-57, 7.5, -2),
    (-68.551, 14.169, -2),
    (-46.546, 52.282, -2),
    (-34.995, 45.613, -2),
    (-22.005, 53.113, -2),
    (-22.005, 66.451, -2),
    (22.005, 66.451, -2),
    (22.005, 53.113, -2),
    (34.995, 45.613, -2),
]))
fillet2.Radius = 5

doc.recompute()
